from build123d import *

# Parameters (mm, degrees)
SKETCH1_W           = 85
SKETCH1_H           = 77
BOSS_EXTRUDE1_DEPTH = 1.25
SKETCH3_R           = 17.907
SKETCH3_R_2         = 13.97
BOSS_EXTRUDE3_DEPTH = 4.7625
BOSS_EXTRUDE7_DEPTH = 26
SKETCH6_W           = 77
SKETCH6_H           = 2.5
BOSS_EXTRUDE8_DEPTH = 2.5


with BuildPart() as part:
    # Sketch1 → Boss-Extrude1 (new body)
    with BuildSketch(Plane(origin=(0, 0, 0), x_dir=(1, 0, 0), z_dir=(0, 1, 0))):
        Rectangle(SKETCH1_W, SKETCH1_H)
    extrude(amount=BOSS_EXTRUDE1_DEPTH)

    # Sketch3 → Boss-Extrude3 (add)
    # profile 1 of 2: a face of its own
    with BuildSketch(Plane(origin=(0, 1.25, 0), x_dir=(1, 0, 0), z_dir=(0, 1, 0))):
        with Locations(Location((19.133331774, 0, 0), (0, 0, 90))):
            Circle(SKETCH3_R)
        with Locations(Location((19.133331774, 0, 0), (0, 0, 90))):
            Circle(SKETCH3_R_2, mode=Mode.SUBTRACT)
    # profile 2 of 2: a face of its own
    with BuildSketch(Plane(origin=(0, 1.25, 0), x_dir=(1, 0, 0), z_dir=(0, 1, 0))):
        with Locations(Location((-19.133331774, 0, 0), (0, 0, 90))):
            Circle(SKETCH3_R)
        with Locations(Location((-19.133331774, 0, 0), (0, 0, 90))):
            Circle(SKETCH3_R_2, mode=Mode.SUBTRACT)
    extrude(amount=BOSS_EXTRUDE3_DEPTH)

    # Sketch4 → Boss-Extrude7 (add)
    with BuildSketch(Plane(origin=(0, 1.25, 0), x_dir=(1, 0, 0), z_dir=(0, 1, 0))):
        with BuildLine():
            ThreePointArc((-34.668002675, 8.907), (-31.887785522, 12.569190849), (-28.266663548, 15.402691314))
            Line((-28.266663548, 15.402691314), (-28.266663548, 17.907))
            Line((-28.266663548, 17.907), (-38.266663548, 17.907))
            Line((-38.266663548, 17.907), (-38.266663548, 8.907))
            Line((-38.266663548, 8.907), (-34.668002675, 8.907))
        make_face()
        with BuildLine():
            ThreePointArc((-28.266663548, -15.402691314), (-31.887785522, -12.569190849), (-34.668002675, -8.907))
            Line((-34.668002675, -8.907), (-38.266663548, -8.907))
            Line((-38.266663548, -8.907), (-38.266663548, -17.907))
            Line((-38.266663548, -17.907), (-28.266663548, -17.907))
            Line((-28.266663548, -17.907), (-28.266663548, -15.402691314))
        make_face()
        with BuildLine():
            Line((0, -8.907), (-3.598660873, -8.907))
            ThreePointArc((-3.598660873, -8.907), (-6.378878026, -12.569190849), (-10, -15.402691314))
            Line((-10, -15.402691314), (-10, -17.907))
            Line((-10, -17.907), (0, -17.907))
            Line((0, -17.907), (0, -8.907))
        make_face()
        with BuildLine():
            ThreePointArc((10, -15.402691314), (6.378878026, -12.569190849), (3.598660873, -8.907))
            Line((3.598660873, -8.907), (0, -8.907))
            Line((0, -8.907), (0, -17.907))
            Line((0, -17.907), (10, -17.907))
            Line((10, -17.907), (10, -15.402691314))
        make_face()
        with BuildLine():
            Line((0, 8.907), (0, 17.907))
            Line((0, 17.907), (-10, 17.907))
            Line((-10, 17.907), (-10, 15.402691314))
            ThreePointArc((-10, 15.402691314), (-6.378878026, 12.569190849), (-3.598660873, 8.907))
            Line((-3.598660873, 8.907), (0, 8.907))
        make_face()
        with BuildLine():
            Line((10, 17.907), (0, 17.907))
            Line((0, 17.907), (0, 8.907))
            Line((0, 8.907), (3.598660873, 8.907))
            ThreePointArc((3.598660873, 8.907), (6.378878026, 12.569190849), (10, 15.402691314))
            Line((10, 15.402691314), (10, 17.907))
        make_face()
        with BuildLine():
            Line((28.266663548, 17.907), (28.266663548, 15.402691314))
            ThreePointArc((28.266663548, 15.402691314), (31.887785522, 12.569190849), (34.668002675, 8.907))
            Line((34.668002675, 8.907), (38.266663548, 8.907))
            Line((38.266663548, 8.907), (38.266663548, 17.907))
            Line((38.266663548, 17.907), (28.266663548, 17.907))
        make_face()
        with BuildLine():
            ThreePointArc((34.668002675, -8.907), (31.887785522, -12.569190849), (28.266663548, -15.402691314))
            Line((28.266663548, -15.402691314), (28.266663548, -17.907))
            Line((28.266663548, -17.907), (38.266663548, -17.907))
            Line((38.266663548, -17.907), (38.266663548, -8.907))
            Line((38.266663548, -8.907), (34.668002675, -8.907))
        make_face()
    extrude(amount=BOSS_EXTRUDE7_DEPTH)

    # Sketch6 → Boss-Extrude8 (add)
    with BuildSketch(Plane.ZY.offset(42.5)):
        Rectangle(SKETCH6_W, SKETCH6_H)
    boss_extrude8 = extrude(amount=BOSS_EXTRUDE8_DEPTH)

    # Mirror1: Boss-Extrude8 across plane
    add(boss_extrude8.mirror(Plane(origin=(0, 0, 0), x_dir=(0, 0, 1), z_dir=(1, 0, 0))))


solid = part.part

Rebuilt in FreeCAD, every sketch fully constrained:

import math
import FreeCAD as App
import Part
import Sketcher

V = App.Vector
Q = App.Units.Quantity


def add_polygon(sketch, points):
    """Adds a closed chain of lines whose ends are joined by coincident constraints."""
    first, n = sketch.GeometryCount, len(points)
    for a, b in zip(points, points[1:] + points[:1]):
        sketch.addGeometry(Part.LineSegment(App.Vector(*a, 0), App.Vector(*b, 0)), False)
    for i in range(n):
        sketch.addConstraint(Sketcher.Constraint("Coincident", first + i, 2, first + (i + 1) % n, 1))

doc = App.newDocument("Part")
body = doc.addObject("PartDesign::Body", "Body")

sketch1 = body.newObject("Sketcher::SketchObject", "Sketch")
sketch1.AttachmentSupport = (doc.getObject("XZ_Plane"), [""])
sketch1.MapMode = "FlatFace"
add_polygon(sketch1, [(-42, -38), (-42, 38), (42, 38), (42, -38)])
sketch1.addConstraint([
    Sketcher.Constraint("Vertical", 0),
    Sketcher.Constraint("Horizontal", 1),
    Sketcher.Constraint("Vertical", 2),
    Sketcher.Constraint("Horizontal", 3),
    Sketcher.Constraint("Symmetric", 0, 2, 2, 2, -1, 1),
    Sketcher.Constraint("DistanceX", 1, 1, 1, 2, Q("85 mm")),
    Sketcher.Constraint("DistanceY", 0, 1, 0, 2, Q("77 mm")),
])
pad1 = body.newObject("PartDesign::Pad", "Pad")
pad1.Profile = sketch1
pad1.Length = 1.25
pad1.Reversed = True

sketch2 = body.newObject("Sketcher::SketchObject", "Sketch001")
sketch2.AttachmentSupport = (doc.getObject("XZ_Plane"), [""])
sketch2.MapMode = "FlatFace"
sketch2.AttachmentOffset = App.Placement(V(0, 0, -1.25), App.Rotation())
sketch2.addGeometry([
    Part.Circle(V(19, 0, 0), V(0, 0, 1), 18),
    Part.Circle(V(19, 0, 0), V(0, 0, 1), 14),
    Part.Circle(V(-19, 0, 0), V(0, 0, 1), 18),
    Part.Circle(V(-19, 0, 0), V(0, 0, 1), 14),
], False)
sketch2.addConstraint([
    Sketcher.Constraint("Coincident", 1, 3, 0, 3),
    Sketcher.Constraint("Coincident", 3, 3, 2, 3),
    Sketcher.Constraint("Equal", 0, 2),
    Sketcher.Constraint("Equal", 1, 3),
    Sketcher.Constraint("Symmetric", 0, 3, 2, 3, -1, 1),
    Sketcher.Constraint("PointOnObject", 0, 3, -1),
    Sketcher.Constraint("Diameter", 1, Q("27.94 mm")),
    Sketcher.Constraint("Diameter", 0, Q("35.814 mm")),
    Sketcher.Constraint("DistanceX", -1, 1, 0, 3, Q("19.133332 mm")),
])
pad2 = body.newObject("PartDesign::Pad", "Pad001")
pad2.Profile = sketch2
pad2.Length = 4.7625
pad2.Reversed = True

sketch3 = body.newObject("Sketcher::SketchObject", "Sketch002")
sketch3.AttachmentSupport = (doc.getObject("XZ_Plane"), [""])
sketch3.MapMode = "FlatFace"
sketch3.AttachmentOffset = App.Placement(V(0, 0, -1.25), App.Rotation())
sketch3.addGeometry([
    Part.ArcOfCircle(Part.Circle(V(-19.1, 0, 0), V(0, 0, 1), 17.9), math.radians(-150), math.radians(-121)),
    Part.LineSegment(V(-28.3, -15.4, 0), V(-28.3, -17.9, 0)),
    Part.LineSegment(V(-28.3, -17.9, 0), V(-38.3, -17.9, 0)),
    Part.LineSegment(V(-38.3, -17.9, 0), V(-38.3, -8.9, 0)),
    Part.LineSegment(V(-38.3, -8.9, 0), V(-34.7, -8.9, 0)),
    Part.ArcOfCircle(Part.Circle(V(-19.1, 0, 0), V(0, 0, 1), 17.9), math.radians(121), math.radians(150)),
    Part.LineSegment(V(-34.7, 8.9, 0), V(-38.3, 8.9, 0)),
    Part.LineSegment(V(-38.3, 8.9, 0), V(-38.3, 17.9, 0)),
    Part.LineSegment(V(-38.3, 17.9, 0), V(-28.3, 17.9, 0)),
    Part.LineSegment(V(-28.3, 17.9, 0), V(-28.3, 15.4, 0)),
    Part.ArcOfCircle(Part.Circle(V(-19.1, 0, 0), V(0, 0, 1), 17.9), math.radians(30), math.radians(59)),
    Part.LineSegment(V(-10, 15.4, 0), V(-10, 17.9, 0)),
    Part.LineSegment(V(-10, 17.9, 0), V(10, 17.9, 0)),
    Part.LineSegment(V(10, 17.9, 0), V(10, 15.4, 0)),
    Part.ArcOfCircle(Part.Circle(V(19.1, 0, 0), V(0, 0, 1), 17.9), math.radians(121), math.radians(150)),
    Part.LineSegment(V(3.6, 8.9, 0), V(-3.6, 8.9, 0)),
    Part.LineSegment(V(-10, -17.9, 0), V(-10, -15.4, 0)),
    Part.ArcOfCircle(Part.Circle(V(-19.1, 0, 0), V(0, 0, 1), 17.9), math.radians(-59), math.radians(-30)),
    Part.LineSegment(V(-3.6, -8.9, 0), V(3.6, -8.9, 0)),
    Part.ArcOfCircle(Part.Circle(V(19.1, 0, 0), V(0, 0, 1), 17.9), math.radians(-150), math.radians(-121)),
    Part.LineSegment(V(10, -15.4, 0), V(10, -17.9, 0)),
    Part.LineSegment(V(10, -17.9, 0), V(-10, -17.9, 0)),
    Part.LineSegment(V(28.3, -17.9, 0), V(28.3, -15.4, 0)),
    Part.ArcOfCircle(Part.Circle(V(19.1, 0, 0), V(0, 0, 1), 17.9), math.radians(-59), math.radians(-30)),
    Part.LineSegment(V(34.7, -8.9, 0), V(38.3, -8.9, 0)),
    Part.LineSegment(V(38.3, -8.9, 0), V(38.3, -17.9, 0)),
    Part.LineSegment(V(38.3, -17.9, 0), V(28.3, -17.9, 0)),
    Part.ArcOfCircle(Part.Circle(V(19.1, 0, 0), V(0, 0, 1), 17.9), math.radians(30), math.radians(59)),
    Part.LineSegment(V(28.3, 15.4, 0), V(28.3, 17.9, 0)),
    Part.LineSegment(V(28.3, 17.9, 0), V(38.3, 17.9, 0)),
    Part.LineSegment(V(38.3, 17.9, 0), V(38.3, 8.9, 0)),
    Part.LineSegment(V(38.3, 8.9, 0), V(34.7, 8.9, 0)),
], False)
sketch3.addConstraint([
    Sketcher.Constraint("Coincident", 0, 2, 1, 1),
    Sketcher.Constraint("Coincident", 1, 2, 2, 1),
    Sketcher.Constraint("Coincident", 2, 2, 3, 1),
    Sketcher.Constraint("Coincident", 3, 2, 4, 1),
    Sketcher.Constraint("Coincident", 4, 2, 0, 1),
    Sketcher.Constraint("Coincident", 5, 2, 6, 1),
    Sketcher.Constraint("Coincident", 6, 2, 7, 1),
    Sketcher.Constraint("Coincident", 7, 2, 8, 1),
    Sketcher.Constraint("Coincident", 8, 2, 9, 1),
    Sketcher.Constraint("Coincident", 9, 2, 5, 1),
    Sketcher.Constraint("Coincident", 10, 2, 11, 1),
    Sketcher.Constraint("Coincident", 11, 2, 12, 1),
    Sketcher.Constraint("Coincident", 12, 2, 13, 1),
    Sketcher.Constraint("Coincident", 13, 2, 14, 1),
    Sketcher.Constraint("Coincident", 14, 2, 15, 1),
    Sketcher.Constraint("Coincident", 15, 2, 10, 1),
    Sketcher.Constraint("Coincident", 16, 2, 17, 1),
    Sketcher.Constraint("Coincident", 17, 2, 18, 1),
    Sketcher.Constraint("Coincident", 18, 2, 19, 1),
    Sketcher.Constraint("Coincident", 19, 2, 20, 1),
    Sketcher.Constraint("Coincident", 20, 2, 21, 1),
    Sketcher.Constraint("Coincident", 21, 2, 16, 1),
    Sketcher.Constraint("Coincident", 22, 2, 23, 1),
    Sketcher.Constraint("Coincident", 23, 2, 24, 1),
    Sketcher.Constraint("Coincident", 24, 2, 25, 1),
    Sketcher.Constraint("Coincident", 25, 2, 26, 1),
    Sketcher.Constraint("Coincident", 26, 2, 22, 1),
    Sketcher.Constraint("Coincident", 27, 2, 28, 1),
    Sketcher.Constraint("Coincident", 28, 2, 29, 1),
    Sketcher.Constraint("Coincident", 29, 2, 30, 1),
    Sketcher.Constraint("Coincident", 30, 2, 31, 1),
    Sketcher.Constraint("Coincident", 31, 2, 27, 1),
    Sketcher.Constraint("Vertical", 1),
    Sketcher.Constraint("Horizontal", 2),
    Sketcher.Constraint("Vertical", 3),
    Sketcher.Constraint("Horizontal", 4),
    Sketcher.Constraint("Horizontal", 6),
    Sketcher.Constraint("Vertical", 7),
    Sketcher.Constraint("Horizontal", 8),
    Sketcher.Constraint("Vertical", 9),
    Sketcher.Constraint("Vertical", 11),
    Sketcher.Constraint("Horizontal", 12),
    Sketcher.Constraint("Vertical", 13),
    Sketcher.Constraint("Horizontal", 15),
    Sketcher.Constraint("Vertical", 16),
    Sketcher.Constraint("Horizontal", 18),
    Sketcher.Constraint("Vertical", 20),
    Sketcher.Constraint("Horizontal", 21),
    Sketcher.Constraint("Vertical", 22),
    Sketcher.Constraint("Horizontal", 24),
    Sketcher.Constraint("Vertical", 25),
    Sketcher.Constraint("Horizontal", 26),
    Sketcher.Constraint("Vertical", 28),
    Sketcher.Constraint("Horizontal", 29),
    Sketcher.Constraint("Vertical", 30),
    Sketcher.Constraint("Horizontal", 31),
    Sketcher.Constraint("Coincident", 5, 3, 0, 3),
    Sketcher.Constraint("Coincident", 10, 3, 0, 3),
    Sketcher.Constraint("Coincident", 17, 3, 0, 3),
    Sketcher.Constraint("Coincident", 19, 3, 14, 3),
    Sketcher.Constraint("Coincident", 23, 3, 14, 3),
    Sketcher.Constraint("Coincident", 27, 3, 14, 3),
    Sketcher.Constraint("Equal", 0, 5),
    Sketcher.Constraint("Equal", 5, 10),
    Sketcher.Constraint("Equal", 10, 14),
    Sketcher.Constraint("Equal", 14, 17),
    Sketcher.Constraint("Equal", 17, 19),
    Sketcher.Constraint("Equal", 19, 23),
    Sketcher.Constraint("Equal", 23, 27),
    Sketcher.Constraint("Symmetric", 0, 3, 14, 3, -1, 1),
    Sketcher.Constraint("Symmetric", 11, 2, 20, 2, -1, 1),
    Sketcher.Constraint("Symmetric", 6, 2, 24, 2, -1, 1),
    Sketcher.Constraint("Symmetric", 8, 2, 26, 2, -1, 1),
    Sketcher.Constraint("Symmetric", 1, 2, 28, 2, -1, 1),
    Sketcher.Constraint("Symmetric", 3, 2, 30, 2, -1, 1),
    Sketcher.Constraint("Symmetric", 10, 2, 13, 2, -2),
    Sketcher.Constraint("Symmetric", 3, 2, 24, 2, -2),
    Sketcher.Constraint("Symmetric", 1, 2, 26, 2, -2),
    Sketcher.Constraint("Horizontal", 9, 2, 10, 2),
    Sketcher.Constraint("Horizontal", 8, 2, 11, 2),
    Sketcher.Constraint("Horizontal", 6, 2, 14, 2),
    Sketcher.Constraint("Horizontal", 0, 2, 16, 2),
    Sketcher.Constraint("Horizontal", 4, 2, 17, 2),
    Sketcher.Constraint("DistanceX", 2, 2, 2, 1, Q("10 mm")),
    Sketcher.Constraint("DistanceX", 12, 1, 12, 2, Q("20 mm")),
    Sketcher.Constraint("DistanceY", 3, 1, 3, 2, Q("9 mm")),
    Sketcher.Constraint("Radius", 0, Q("17.907 mm")),
    Sketcher.Constraint("DistanceY", 1, 2, -1, 1, Q("17.907 mm")),
    Sketcher.Constraint("DistanceX", 4, 1, 4, 2, Q("3.598661 mm")),
])
pad3 = body.newObject("PartDesign::Pad", "Pad002")
pad3.Profile = sketch3
pad3.Length = 26
pad3.Reversed = True

sketch4 = body.newObject("Sketcher::SketchObject", "Sketch003")
sketch4.AttachmentSupport = (doc.getObject("YZ_Plane"), [""])
sketch4.MapMode = "FlatFace"
sketch4.AttachmentOffset = App.Placement(V(0, 0, -42.5), App.Rotation())
add_polygon(sketch4, [(1.2, -38.5), (-1.2, -38.5), (-1.2, 38.5), (1.2, 38.5)])
sketch4.addConstraint([
    Sketcher.Constraint("Horizontal", 0),
    Sketcher.Constraint("Vertical", 1),
    Sketcher.Constraint("Horizontal", 2),
    Sketcher.Constraint("Vertical", 3),
    Sketcher.Constraint("Symmetric", 0, 2, 2, 2, -1, 1),
    Sketcher.Constraint("DistanceY", 1, 1, 1, 2, Q("77 mm")),
    Sketcher.Constraint("DistanceX", 0, 2, 0, 1, Q("2.5 mm")),
])
pad4 = body.newObject("PartDesign::Pad", "Pad003")
pad4.Profile = sketch4
pad4.Length = 2.5
pad4.Reversed = True
doc.recompute()

mirrored = body.newObject("PartDesign::Mirrored", "Mirrored")
mirrored.Originals = [pad4]
mirrored.MirrorPlane = (doc.getObject("YZ_Plane"), [""])
body.Tip = mirrored

doc.recompute()
